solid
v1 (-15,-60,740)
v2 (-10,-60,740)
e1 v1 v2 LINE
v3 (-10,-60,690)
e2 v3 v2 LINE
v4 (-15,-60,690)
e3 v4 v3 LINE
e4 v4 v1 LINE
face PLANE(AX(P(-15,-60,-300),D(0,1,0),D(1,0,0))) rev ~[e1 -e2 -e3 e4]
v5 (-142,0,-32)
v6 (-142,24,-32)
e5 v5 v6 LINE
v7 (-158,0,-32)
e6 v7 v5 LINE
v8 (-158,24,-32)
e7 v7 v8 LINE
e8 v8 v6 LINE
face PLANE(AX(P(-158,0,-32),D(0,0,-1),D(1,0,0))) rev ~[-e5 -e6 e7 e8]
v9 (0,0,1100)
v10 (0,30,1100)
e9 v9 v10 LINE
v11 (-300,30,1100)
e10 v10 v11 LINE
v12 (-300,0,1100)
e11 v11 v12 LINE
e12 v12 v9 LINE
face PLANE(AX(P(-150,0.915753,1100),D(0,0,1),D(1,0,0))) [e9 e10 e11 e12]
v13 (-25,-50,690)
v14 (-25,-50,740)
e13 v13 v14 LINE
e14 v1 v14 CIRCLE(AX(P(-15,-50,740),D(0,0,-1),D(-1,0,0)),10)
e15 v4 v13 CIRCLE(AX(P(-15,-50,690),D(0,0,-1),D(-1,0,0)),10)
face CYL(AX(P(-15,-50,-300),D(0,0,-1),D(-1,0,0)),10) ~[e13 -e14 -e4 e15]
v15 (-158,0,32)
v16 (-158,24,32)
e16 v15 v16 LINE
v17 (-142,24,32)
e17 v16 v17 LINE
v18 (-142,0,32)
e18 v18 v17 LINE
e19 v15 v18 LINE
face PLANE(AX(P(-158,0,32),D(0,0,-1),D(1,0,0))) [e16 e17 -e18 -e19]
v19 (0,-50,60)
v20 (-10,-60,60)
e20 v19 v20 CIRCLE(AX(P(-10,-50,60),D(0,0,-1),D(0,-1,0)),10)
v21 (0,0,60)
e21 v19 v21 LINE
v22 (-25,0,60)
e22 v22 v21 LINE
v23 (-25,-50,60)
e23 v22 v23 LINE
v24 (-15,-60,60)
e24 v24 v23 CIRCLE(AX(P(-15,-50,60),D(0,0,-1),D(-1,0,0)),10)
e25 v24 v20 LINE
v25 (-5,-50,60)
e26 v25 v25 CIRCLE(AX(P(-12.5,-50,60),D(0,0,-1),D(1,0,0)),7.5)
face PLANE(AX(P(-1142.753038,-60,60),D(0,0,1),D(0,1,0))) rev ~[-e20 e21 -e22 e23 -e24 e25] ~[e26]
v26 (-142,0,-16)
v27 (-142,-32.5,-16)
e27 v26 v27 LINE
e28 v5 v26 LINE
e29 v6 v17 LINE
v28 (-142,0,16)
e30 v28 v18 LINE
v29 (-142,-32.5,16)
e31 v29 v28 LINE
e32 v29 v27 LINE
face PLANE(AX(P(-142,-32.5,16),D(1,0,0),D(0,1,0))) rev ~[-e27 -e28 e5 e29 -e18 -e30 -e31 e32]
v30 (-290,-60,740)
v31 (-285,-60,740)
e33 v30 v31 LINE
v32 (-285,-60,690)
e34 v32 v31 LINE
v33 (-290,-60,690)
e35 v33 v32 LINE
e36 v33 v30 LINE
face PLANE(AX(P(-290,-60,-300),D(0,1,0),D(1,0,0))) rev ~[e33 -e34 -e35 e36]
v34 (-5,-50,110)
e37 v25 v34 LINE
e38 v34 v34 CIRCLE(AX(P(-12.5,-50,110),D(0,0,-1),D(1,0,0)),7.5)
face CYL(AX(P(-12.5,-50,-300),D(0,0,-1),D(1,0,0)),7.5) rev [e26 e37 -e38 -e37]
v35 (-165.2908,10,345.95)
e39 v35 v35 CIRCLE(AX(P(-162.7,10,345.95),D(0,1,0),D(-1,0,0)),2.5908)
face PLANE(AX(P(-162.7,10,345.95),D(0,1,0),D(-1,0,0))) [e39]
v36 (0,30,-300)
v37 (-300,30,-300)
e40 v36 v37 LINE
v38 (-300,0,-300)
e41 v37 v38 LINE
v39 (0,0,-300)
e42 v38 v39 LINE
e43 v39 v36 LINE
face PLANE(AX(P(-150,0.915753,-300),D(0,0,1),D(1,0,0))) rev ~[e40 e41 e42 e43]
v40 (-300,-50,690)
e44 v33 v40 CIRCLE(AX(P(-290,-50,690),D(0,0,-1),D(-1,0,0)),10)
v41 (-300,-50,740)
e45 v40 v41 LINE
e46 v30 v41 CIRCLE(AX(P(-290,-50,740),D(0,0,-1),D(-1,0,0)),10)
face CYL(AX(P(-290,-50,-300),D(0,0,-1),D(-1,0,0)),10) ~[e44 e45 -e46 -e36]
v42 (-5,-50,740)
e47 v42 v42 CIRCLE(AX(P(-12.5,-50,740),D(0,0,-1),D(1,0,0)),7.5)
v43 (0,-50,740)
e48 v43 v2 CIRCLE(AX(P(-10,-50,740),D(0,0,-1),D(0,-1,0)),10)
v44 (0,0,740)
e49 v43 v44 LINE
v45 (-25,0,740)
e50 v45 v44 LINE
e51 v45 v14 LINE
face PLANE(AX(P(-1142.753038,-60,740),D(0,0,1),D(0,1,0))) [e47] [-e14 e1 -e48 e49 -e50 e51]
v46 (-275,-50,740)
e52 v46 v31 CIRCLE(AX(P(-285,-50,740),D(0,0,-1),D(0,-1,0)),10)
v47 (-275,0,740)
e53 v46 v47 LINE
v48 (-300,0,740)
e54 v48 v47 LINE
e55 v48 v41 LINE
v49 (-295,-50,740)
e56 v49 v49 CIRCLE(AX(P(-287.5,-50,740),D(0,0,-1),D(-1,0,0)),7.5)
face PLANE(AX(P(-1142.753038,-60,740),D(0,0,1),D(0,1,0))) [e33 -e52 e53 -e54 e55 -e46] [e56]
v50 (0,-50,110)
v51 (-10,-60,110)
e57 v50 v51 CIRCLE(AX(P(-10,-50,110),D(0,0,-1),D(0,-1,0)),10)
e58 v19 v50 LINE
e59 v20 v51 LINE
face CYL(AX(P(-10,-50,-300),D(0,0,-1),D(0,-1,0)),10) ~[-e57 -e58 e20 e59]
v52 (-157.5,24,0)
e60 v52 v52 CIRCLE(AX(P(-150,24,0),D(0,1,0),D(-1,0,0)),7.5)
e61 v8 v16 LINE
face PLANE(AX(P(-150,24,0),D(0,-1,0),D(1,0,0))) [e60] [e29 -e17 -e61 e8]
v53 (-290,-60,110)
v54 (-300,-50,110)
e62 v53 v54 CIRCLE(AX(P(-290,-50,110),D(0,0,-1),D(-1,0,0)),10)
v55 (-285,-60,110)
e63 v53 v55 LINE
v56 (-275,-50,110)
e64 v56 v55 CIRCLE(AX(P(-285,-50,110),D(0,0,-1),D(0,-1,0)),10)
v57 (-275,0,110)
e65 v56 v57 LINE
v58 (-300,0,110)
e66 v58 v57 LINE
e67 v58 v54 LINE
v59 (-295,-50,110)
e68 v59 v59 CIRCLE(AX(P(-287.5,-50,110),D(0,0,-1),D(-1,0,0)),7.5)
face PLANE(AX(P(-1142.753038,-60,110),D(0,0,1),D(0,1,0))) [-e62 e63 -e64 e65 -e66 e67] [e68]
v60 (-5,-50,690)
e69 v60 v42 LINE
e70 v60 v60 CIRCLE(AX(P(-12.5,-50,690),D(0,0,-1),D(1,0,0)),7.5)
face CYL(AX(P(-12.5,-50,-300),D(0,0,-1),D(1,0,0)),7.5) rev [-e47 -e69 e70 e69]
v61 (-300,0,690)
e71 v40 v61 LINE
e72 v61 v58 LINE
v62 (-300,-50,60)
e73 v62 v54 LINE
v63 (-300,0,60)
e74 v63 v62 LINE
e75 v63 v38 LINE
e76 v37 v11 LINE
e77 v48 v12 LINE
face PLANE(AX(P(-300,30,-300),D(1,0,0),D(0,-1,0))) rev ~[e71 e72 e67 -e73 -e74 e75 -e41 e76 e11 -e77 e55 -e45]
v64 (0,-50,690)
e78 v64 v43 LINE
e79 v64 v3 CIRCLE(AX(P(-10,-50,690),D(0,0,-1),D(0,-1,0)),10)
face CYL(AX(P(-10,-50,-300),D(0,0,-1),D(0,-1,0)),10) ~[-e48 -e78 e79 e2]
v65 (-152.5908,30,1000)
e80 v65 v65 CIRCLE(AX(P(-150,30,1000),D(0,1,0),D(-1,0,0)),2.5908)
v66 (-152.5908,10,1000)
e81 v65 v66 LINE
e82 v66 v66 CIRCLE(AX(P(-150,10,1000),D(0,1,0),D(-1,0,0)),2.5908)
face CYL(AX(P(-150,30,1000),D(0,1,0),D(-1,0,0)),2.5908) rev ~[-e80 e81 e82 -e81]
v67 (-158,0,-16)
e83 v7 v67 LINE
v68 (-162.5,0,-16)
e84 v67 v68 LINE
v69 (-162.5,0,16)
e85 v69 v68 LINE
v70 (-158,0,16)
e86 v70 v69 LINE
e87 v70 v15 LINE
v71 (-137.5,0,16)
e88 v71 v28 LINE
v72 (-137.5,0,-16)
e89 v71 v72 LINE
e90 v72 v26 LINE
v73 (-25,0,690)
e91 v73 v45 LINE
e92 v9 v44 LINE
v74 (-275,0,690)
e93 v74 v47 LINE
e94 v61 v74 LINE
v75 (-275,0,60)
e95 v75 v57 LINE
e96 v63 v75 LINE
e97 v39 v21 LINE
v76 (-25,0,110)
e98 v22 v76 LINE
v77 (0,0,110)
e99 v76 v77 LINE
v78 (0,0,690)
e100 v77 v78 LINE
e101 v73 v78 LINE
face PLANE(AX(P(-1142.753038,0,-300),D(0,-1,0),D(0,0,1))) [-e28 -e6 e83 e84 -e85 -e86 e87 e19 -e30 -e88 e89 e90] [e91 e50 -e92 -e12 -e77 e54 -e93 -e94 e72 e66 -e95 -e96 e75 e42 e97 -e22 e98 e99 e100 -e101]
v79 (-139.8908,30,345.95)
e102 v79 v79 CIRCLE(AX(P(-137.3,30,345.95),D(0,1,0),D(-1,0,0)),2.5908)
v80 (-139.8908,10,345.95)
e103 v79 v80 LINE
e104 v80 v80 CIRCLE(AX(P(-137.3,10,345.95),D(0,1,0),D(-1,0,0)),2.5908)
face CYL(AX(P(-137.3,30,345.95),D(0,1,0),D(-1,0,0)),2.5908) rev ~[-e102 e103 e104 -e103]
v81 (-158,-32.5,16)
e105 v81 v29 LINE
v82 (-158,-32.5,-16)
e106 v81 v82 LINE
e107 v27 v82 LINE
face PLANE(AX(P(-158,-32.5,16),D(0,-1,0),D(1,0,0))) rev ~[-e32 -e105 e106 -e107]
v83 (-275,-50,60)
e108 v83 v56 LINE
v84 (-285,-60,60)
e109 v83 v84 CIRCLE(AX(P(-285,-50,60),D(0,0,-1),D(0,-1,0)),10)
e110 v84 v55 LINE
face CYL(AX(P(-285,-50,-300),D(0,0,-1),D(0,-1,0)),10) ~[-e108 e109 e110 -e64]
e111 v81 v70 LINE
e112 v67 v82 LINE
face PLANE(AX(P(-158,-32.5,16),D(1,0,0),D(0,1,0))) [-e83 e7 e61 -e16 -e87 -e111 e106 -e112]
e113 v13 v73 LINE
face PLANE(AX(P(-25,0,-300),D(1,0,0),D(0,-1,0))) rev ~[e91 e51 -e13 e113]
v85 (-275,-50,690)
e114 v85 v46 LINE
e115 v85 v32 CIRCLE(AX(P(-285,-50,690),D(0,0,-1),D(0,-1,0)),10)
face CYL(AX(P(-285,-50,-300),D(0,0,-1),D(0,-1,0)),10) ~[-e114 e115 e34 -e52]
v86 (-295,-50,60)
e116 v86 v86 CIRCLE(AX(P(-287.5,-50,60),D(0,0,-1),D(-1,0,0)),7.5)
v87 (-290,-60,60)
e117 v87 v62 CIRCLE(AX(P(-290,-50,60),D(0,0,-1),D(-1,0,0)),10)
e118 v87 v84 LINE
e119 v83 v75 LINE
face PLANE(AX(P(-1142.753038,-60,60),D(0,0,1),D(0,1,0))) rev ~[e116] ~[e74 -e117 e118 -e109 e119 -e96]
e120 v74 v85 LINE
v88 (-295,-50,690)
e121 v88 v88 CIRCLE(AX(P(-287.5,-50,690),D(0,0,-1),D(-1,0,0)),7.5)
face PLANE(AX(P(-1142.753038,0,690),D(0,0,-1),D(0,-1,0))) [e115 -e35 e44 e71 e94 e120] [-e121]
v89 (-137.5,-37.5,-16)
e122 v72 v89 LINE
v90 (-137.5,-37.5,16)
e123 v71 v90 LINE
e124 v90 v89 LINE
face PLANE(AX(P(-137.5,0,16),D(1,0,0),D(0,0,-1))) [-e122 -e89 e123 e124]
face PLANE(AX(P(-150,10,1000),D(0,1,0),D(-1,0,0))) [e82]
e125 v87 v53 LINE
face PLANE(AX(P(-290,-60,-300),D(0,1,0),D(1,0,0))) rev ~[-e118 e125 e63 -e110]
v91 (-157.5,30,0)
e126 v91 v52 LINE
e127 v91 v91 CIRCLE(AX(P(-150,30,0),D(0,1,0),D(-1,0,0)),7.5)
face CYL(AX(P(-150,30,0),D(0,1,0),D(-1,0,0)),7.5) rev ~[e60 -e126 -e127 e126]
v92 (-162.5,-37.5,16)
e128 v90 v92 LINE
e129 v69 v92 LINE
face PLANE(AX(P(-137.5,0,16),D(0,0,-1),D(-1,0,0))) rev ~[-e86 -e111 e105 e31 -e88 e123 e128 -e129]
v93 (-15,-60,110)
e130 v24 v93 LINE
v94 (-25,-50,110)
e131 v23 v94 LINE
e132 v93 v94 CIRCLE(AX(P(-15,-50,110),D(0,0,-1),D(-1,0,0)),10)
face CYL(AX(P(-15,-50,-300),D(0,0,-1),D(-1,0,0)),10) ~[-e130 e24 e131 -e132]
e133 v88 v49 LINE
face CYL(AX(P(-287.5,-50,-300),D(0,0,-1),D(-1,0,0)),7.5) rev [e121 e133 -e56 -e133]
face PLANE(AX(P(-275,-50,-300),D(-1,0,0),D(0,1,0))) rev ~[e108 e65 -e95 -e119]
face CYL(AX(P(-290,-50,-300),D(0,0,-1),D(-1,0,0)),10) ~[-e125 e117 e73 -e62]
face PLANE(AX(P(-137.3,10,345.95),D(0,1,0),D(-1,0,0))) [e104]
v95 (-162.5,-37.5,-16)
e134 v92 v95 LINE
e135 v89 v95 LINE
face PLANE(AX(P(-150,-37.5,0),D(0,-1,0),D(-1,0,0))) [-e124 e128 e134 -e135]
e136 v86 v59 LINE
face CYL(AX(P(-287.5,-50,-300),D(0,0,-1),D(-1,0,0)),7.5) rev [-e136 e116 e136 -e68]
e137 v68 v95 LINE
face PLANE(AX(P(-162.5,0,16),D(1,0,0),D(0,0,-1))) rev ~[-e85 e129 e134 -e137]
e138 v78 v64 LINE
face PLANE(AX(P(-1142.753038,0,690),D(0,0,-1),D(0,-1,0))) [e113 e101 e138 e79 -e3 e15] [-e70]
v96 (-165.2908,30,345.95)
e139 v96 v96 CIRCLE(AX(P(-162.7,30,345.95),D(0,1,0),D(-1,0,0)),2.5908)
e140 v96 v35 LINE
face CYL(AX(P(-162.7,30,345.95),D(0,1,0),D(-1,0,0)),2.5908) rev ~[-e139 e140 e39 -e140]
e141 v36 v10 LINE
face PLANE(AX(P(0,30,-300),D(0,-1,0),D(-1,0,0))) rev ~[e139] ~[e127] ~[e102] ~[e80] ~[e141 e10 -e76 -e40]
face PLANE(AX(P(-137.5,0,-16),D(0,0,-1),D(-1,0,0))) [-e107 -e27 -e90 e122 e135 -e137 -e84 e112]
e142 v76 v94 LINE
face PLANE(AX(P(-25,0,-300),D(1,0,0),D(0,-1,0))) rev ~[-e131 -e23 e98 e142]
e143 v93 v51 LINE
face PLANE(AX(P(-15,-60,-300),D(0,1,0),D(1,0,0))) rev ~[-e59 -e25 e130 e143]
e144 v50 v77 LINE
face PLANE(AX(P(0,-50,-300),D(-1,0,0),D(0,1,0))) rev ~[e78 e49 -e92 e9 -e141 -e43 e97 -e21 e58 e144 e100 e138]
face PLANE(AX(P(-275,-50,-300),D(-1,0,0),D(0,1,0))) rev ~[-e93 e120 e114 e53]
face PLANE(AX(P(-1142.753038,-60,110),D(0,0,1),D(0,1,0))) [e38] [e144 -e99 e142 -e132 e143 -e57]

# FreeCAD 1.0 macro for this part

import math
import FreeCAD as App
import Part
import Sketcher
Q = App.Units.Quantity

doc = App.newDocument("Part")
body = doc.addObject("PartDesign::Body", "Body")

sketch1 = body.newObject("Sketcher::SketchObject", "Sketch")
sketch1.AttachmentSupport = (doc.getObject("XY_Plane"), [""])
sketch1.MapMode = "FlatFace"
sketch1.addGeometry([
    Part.LineSegment(App.Vector(0, 30, 0), App.Vector(-300, 30, 0)),
    Part.LineSegment(App.Vector(-300, 30, 0), App.Vector(-300, -50, 0)),
    Part.ArcOfCircle(Part.Circle(App.Vector(-290, -50, 0), App.Vector(0, 0, 1), 10), math.radians(180), math.radians(270)),
    Part.LineSegment(App.Vector(-290, -60, 0), App.Vector(-285, -60, 0)),
    Part.ArcOfCircle(Part.Circle(App.Vector(-285, -50, 0), App.Vector(0, 0, 1), 10), math.radians(-90), math.radians(0)),
    Part.LineSegment(App.Vector(-275, -50, 0), App.Vector(-275, 0, 0)),
    Part.LineSegment(App.Vector(-275, 0, 0), App.Vector(-25, 0, 0)),
    Part.LineSegment(App.Vector(-25, 0, 0), App.Vector(-25, -50, 0)),
    Part.ArcOfCircle(Part.Circle(App.Vector(-15, -50, 0), App.Vector(0, 0, 1), 10), math.radians(180), math.radians(270)),
    Part.LineSegment(App.Vector(-15, -60, 0), App.Vector(-10, -60, 0)),
    Part.ArcOfCircle(Part.Circle(App.Vector(-10, -50, 0), App.Vector(0, 0, 1), 10), math.radians(-90), math.radians(0)),
    Part.LineSegment(App.Vector(0, -50, 0), App.Vector(0, 30, 0)),
    Part.Circle(App.Vector(-288, -50, 0), App.Vector(0, 0, 1), 8),
    Part.Circle(App.Vector(-12, -50, 0), App.Vector(0, 0, 1), 8),
], False)
sketch1.addConstraint([
    Sketcher.Constraint("Coincident", 0, 2, 1, 1),
    Sketcher.Constraint("Tangent", 1, 2, 2, 1),
    Sketcher.Constraint("Tangent", 2, 2, 3, 1),
    Sketcher.Constraint("Tangent", 3, 2, 4, 1),
    Sketcher.Constraint("Tangent", 4, 2, 5, 1),
    Sketcher.Constraint("Coincident", 5, 2, 6, 1),
    Sketcher.Constraint("Coincident", 6, 2, 7, 1),
    Sketcher.Constraint("Tangent", 7, 2, 8, 1),
    Sketcher.Constraint("Tangent", 8, 2, 9, 1),
    Sketcher.Constraint("Tangent", 9, 2, 10, 1),
    Sketcher.Constraint("Tangent", 10, 2, 11, 1),
    Sketcher.Constraint("Coincident", 11, 2, 0, 1),
    Sketcher.Constraint("Horizontal", 0),
    Sketcher.Constraint("Vertical", 1),
    Sketcher.Constraint("Horizontal", 3),
    Sketcher.Constraint("Vertical", 5),
    Sketcher.Constraint("Horizontal", 6),
    Sketcher.Constraint("Vertical", 7),
    Sketcher.Constraint("Horizontal", 9),
    Sketcher.Constraint("Vertical", 11),
    Sketcher.Constraint("Equal", 2, 4),
    Sketcher.Constraint("Equal", 4, 8),
    Sketcher.Constraint("Equal", 8, 10),
    Sketcher.Constraint("Equal", 12, 13),
    Sketcher.Constraint("PointOnObject", 5, 2, -1),
    Sketcher.Constraint("PointOnObject", 10, 2, -2),
    Sketcher.Constraint("Horizontal", 4, 3, 8, 3),
    Sketcher.Constraint("Horizontal", 10, 3, 12, 3),
    Sketcher.Constraint("Horizontal", 12, 3, 13, 3),
    Sketcher.Constraint("Equal", 3, 9),
    Sketcher.Constraint("Diameter", 12, Q("15 mm")),
    Sketcher.Constraint("Radius", 2, Q("10 mm")),
    Sketcher.Constraint("DistanceX", 0, 2, 0, 1, Q("300 mm")),
    Sketcher.Constraint("DistanceX", 3, 1, 3, 2, Q("5 mm")),
    Sketcher.Constraint("DistanceY", 1, 2, 1, 1, Q("80 mm")),
    Sketcher.Constraint("DistanceY", 5, 1, 5, 2, Q("50 mm")),
    Sketcher.Constraint("DistanceX", 12, 3, 13, 3, Q("275 mm")),
    Sketcher.Constraint("DistanceX", 12, 3, -1, 1, Q("287.5 mm")),
])
pad1 = body.newObject("PartDesign::Pad", "Pad")
pad1.Profile = sketch1
pad1.Type = "TwoLengths"
pad1.Length = 1100
pad1.Length2 = 300

sketch2 = body.newObject("Sketcher::SketchObject", "Sketch001")
sketch2.AttachmentSupport = (doc.getObject("YZ_Plane"), [""])
sketch2.MapMode = "FlatFace"
sketch2.addGeometry([
    Part.LineSegment(App.Vector(0, 1100, 0), App.Vector(-60, 1100, 0)),
    Part.LineSegment(App.Vector(-60, 1100, 0), App.Vector(-60, 740, 0)),
    Part.LineSegment(App.Vector(-60, 740, 0), App.Vector(0, 740, 0)),
    Part.LineSegment(App.Vector(0, 740, 0), App.Vector(0, 1100, 0)),
    Part.LineSegment(App.Vector(0, -300, 0), App.Vector(0, 60, 0)),
    Part.LineSegment(App.Vector(0, 60, 0), App.Vector(-60, 60, 0)),
    Part.LineSegment(App.Vector(-60, 60, 0), App.Vector(-60, -300, 0)),
    Part.LineSegment(App.Vector(-60, -300, 0), App.Vector(0, -300, 0)),
    Part.LineSegment(App.Vector(-60, 690, 0), App.Vector(-60, 110, 0)),
    Part.LineSegment(App.Vector(-60, 110, 0), App.Vector(0, 110, 0)),
    Part.LineSegment(App.Vector(0, 110, 0), App.Vector(0, 690, 0)),
    Part.LineSegment(App.Vector(0, 690, 0), App.Vector(-60, 690, 0)),
], False)
sketch2.addConstraint([
    Sketcher.Constraint("Coincident", 0, 2, 1, 1),
    Sketcher.Constraint("Coincident", 1, 2, 2, 1),
    Sketcher.Constraint("Coincident", 2, 2, 3, 1),
    Sketcher.Constraint("Coincident", 3, 2, 0, 1),
    Sketcher.Constraint("Coincident", 4, 2, 5, 1),
    Sketcher.Constraint("Coincident", 5, 2, 6, 1),
    Sketcher.Constraint("Coincident", 6, 2, 7, 1),
    Sketcher.Constraint("Coincident", 7, 2, 4, 1),
    Sketcher.Constraint("Coincident", 8, 2, 9, 1),
    Sketcher.Constraint("Coincident", 9, 2, 10, 1),
    Sketcher.Constraint("Coincident", 10, 2, 11, 1),
    Sketcher.Constraint("Coincident", 11, 2, 8, 1),
    Sketcher.Constraint("Horizontal", 0),
    Sketcher.Constraint("Vertical", 1),
    Sketcher.Constraint("Horizontal", 2),
    Sketcher.Constraint("Vertical", 3),
    Sketcher.Constraint("Vertical", 4),
    Sketcher.Constraint("Horizontal", 5),
    Sketcher.Constraint("Vertical", 6),
    Sketcher.Constraint("Horizontal", 7),
    Sketcher.Constraint("Vertical", 8),
    Sketcher.Constraint("Horizontal", 9),
    Sketcher.Constraint("Vertical", 10),
    Sketcher.Constraint("Horizontal", 11),
    Sketcher.Constraint("PointOnObject", 2, 2, -2),
    Sketcher.Constraint("PointOnObject", 4, 2, -2),
    Sketcher.Constraint("PointOnObject", 9, 2, -2),
    Sketcher.Constraint("Vertical", 1, 2, 5, 2),
    Sketcher.Constraint("Vertical", 6, 2, 8, 2),
    Sketcher.Constraint("Equal", 3, 4),
    Sketcher.Constraint("DistanceX", 0, 2, 0, 1, Q("60 mm")),
    Sketcher.Constraint("DistanceY", 1, 2, 1, 1, Q("360 mm")),
    Sketcher.Constraint("DistanceY", 8, 2, 8, 1, Q("580 mm")),
    Sketcher.Constraint("DistanceY", -1, 1, 0, 2, Q("1100 mm")),
    Sketcher.Constraint("DistanceY", -1, 1, 4, 2, Q("60 mm")),
    Sketcher.Constraint("DistanceY", -1, 1, 8, 2, Q("110 mm")),
])
pocket1 = body.newObject("PartDesign::Pocket", "Pocket")
pocket1.Profile = sketch2
pocket1.Type = "ThroughAll"
pocket1.Midplane = True

sketch3 = body.newObject("Sketcher::SketchObject", "Sketch002")
sketch3.AttachmentSupport = (doc.getObject("XZ_Plane"), [""])
sketch3.MapMode = "FlatFace"
sketch3.AttachmentOffset = App.Placement(App.Vector(0, 0, -30), App.Rotation())
sketch3.addGeometry(Part.Circle(App.Vector(-150, 0, 0), App.Vector(0, 0, 1), 8), False)
sketch3.addConstraint([
    Sketcher.Constraint("PointOnObject", 0, 3, -1),
    Sketcher.Constraint("Diameter", 0, Q("15 mm")),
    Sketcher.Constraint("DistanceX", 0, 3, -1, 1, Q("150 mm")),
])
pocket2 = body.newObject("PartDesign::Pocket", "Pocket001")
pocket2.Profile = sketch3
pocket2.Type = "ThroughAll"
pocket2.Reversed = True

sketch4 = body.newObject("Sketcher::SketchObject", "Sketch003")
sketch4.AttachmentSupport = (doc.getObject("XZ_Plane"), [""])
sketch4.MapMode = "FlatFace"
sketch4.addGeometry([
    Part.LineSegment(App.Vector(-138, -16, 0), App.Vector(-138, 16, 0)),
    Part.LineSegment(App.Vector(-138, 16, 0), App.Vector(-162, 16, 0)),
    Part.LineSegment(App.Vector(-162, 16, 0), App.Vector(-162, -16, 0)),
    Part.LineSegment(App.Vector(-162, -16, 0), App.Vector(-138, -16, 0)),
], False)
sketch4.addConstraint([
    Sketcher.Constraint("Coincident", 0, 2, 1, 1),
    Sketcher.Constraint("Coincident", 1, 2, 2, 1),
    Sketcher.Constraint("Coincident", 2, 2, 3, 1),
    Sketcher.Constraint("Coincident", 3, 2, 0, 1),
    Sketcher.Constraint("Vertical", 0),
    Sketcher.Constraint("Horizontal", 1),
    Sketcher.Constraint("Vertical", 2),
    Sketcher.Constraint("Horizontal", 3),
    Sketcher.Constraint("DistanceX", 1, 2, 1, 1, Q("25 mm")),
    Sketcher.Constraint("DistanceY", 0, 1, 0, 2, Q("32 mm")),
    Sketcher.Constraint("DistanceY", -1, 1, 0, 2, Q("16 mm")),
    Sketcher.Constraint("DistanceX", 0, 2, -1, 1, Q("137.5 mm")),
])
pad2 = body.newObject("PartDesign::Pad", "Pad001")
pad2.Profile = sketch4
pad2.Length = 37.5

sketch5 = body.newObject("Sketcher::SketchObject", "Sketch004")
sketch5.AttachmentSupport = (doc.getObject("XY_Plane"), [""])
sketch5.MapMode = "FlatFace"
sketch5.AttachmentOffset = App.Placement(App.Vector(0, 0, 16), App.Rotation())
sketch5.addGeometry([
    Part.LineSegment(App.Vector(-158, 0, 0), App.Vector(-158, -32, 0)),
    Part.LineSegment(App.Vector(-158, -32, 0), App.Vector(-142, -32, 0)),
    Part.LineSegment(App.Vector(-142, -32, 0), App.Vector(-142, 0, 0)),
    Part.LineSegment(App.Vector(-142, 0, 0), App.Vector(-158, 0, 0)),
], False)
sketch5.addConstraint([
    Sketcher.Constraint("Coincident", 0, 2, 1, 1),
    Sketcher.Constraint("Coincident", 1, 2, 2, 1),
    Sketcher.Constraint("Coincident", 2, 2, 3, 1),
    Sketcher.Constraint("Coincident", 3, 2, 0, 1),
    Sketcher.Constraint("Vertical", 0),
    Sketcher.Constraint("Horizontal", 1),
    Sketcher.Constraint("Vertical", 2),
    Sketcher.Constraint("Horizontal", 3),
    Sketcher.Constraint("PointOnObject", 2, 2, -1),
    Sketcher.Constraint("DistanceX", 1, 1, 1, 2, Q("16 mm")),
    Sketcher.Constraint("DistanceY", 0, 2, 0, 1, Q("32.5 mm")),
    Sketcher.Constraint("DistanceX", 0, 2, -1, 1, Q("158 mm")),
])
pocket3 = body.newObject("PartDesign::Pocket", "Pocket002")
pocket3.Profile = sketch5
pocket3.Type = "ThroughAll"

sketch6 = body.newObject("Sketcher::SketchObject", "Sketch005")
sketch6.AttachmentSupport = (doc.getObject("XZ_Plane"), [""])
sketch6.MapMode = "FlatFace"
sketch6.addGeometry([
    Part.LineSegment(App.Vector(-158, 32, 0), App.Vector(-158, -32, 0)),
    Part.LineSegment(App.Vector(-158, -32, 0), App.Vector(-142, -32, 0)),
    Part.LineSegment(App.Vector(-142, -32, 0), App.Vector(-142, 32, 0)),
    Part.LineSegment(App.Vector(-142, 32, 0), App.Vector(-158, 32, 0)),
], False)
sketch6.addConstraint([
    Sketcher.Constraint("Coincident", 0, 2, 1, 1),
    Sketcher.Constraint("Coincident", 1, 2, 2, 1),
    Sketcher.Constraint("Coincident", 2, 2, 3, 1),
    Sketcher.Constraint("Coincident", 3, 2, 0, 1),
    Sketcher.Constraint("Vertical", 0),
    Sketcher.Constraint("Horizontal", 1),
    Sketcher.Constraint("Vertical", 2),
    Sketcher.Constraint("Horizontal", 3),
    Sketcher.Constraint("DistanceX", 1, 1, 1, 2, Q("16 mm")),
    Sketcher.Constraint("DistanceY", 0, 2, 0, 1, Q("64 mm")),
    Sketcher.Constraint("DistanceX", 0, 2, -1, 1, Q("158 mm")),
    Sketcher.Constraint("DistanceY", 0, 2, -1, 1, Q("32 mm")),
])
pocket4 = body.newObject("PartDesign::Pocket", "Pocket003")
pocket4.Profile = sketch6
pocket4.Length = 24

sketch7 = body.newObject("Sketcher::SketchObject", "Sketch006")
sketch7.AttachmentSupport = (doc.getObject("XZ_Plane"), [""])
sketch7.MapMode = "FlatFace"
sketch7.AttachmentOffset = App.Placement(App.Vector(0, 0, -30), App.Rotation())
sketch7.addGeometry([
    Part.Circle(App.Vector(-150, 1000, 0), App.Vector(0, 0, 1), 2.6),
    Part.Circle(App.Vector(-162.7, 345.9, 0), App.Vector(0, 0, 1), 2.6),
    Part.Circle(App.Vector(-137.3, 345.9, 0), App.Vector(0, 0, 1), 2.6),
], False)
sketch7.addConstraint([
    Sketcher.Constraint("Equal", 0, 1),
    Sketcher.Constraint("Equal", 1, 2),
    Sketcher.Constraint("Horizontal", 1, 3, 2, 3),
    Sketcher.Constraint("DistanceX", 0, 3, -1, 1, Q("150 mm")),
    Sketcher.Constraint("DistanceY", -1, 1, 0, 3, Q("1000 mm")),
    Sketcher.Constraint("Diameter", 0, Q("5.1816 mm")),
    Sketcher.Constraint("DistanceX", 1, 3, -1, 1, Q("162.7 mm")),
    Sketcher.Constraint("DistanceX", 2, 3, -1, 1, Q("137.3 mm")),
    Sketcher.Constraint("DistanceY", -1, 1, 1, 3, Q("345.95 mm")),
])
pocket5 = body.newObject("PartDesign::Pocket", "Pocket004")
pocket5.Profile = sketch7
pocket5.Length = 20
pocket5.Reversed = True

doc.recompute()
